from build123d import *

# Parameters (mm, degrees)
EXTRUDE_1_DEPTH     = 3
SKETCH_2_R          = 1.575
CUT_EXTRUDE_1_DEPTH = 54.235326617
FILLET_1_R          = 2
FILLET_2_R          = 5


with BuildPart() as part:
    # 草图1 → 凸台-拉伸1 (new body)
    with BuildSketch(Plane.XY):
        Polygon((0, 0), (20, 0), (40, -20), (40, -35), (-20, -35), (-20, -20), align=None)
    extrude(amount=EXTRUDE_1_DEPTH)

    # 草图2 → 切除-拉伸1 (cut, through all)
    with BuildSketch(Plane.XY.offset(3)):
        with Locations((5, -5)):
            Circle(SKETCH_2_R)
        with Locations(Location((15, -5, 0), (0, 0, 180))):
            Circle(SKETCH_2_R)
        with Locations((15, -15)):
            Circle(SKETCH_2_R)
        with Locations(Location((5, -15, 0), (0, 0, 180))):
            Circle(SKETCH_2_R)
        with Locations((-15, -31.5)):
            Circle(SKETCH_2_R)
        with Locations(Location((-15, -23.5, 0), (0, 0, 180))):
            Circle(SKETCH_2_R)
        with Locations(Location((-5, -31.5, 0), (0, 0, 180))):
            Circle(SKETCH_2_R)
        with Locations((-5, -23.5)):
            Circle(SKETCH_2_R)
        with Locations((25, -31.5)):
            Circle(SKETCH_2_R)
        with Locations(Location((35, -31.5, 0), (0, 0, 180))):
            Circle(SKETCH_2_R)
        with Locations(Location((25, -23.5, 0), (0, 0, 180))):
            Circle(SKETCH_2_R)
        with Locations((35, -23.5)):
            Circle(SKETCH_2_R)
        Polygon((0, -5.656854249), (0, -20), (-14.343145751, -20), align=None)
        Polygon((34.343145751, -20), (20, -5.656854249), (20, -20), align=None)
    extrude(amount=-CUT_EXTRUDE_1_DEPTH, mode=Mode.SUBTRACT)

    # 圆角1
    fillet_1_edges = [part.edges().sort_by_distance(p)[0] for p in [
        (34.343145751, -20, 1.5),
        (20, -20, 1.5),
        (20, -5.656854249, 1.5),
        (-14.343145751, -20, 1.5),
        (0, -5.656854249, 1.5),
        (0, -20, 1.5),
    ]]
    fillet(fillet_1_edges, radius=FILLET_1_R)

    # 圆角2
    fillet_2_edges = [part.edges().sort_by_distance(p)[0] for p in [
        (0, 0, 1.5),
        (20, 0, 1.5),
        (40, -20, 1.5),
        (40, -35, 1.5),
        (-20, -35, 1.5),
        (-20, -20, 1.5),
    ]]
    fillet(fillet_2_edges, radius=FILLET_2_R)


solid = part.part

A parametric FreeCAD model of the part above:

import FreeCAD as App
import Part
import Sketcher
Q = App.Units.Quantity


def edges_at(feature, points):
    """Names of the edges that pass closest to the given points."""
    edges = feature.Shape.Edges
    near = lambda p: min(range(len(edges)), key=lambda i: edges[i].distToShape(Part.Vertex(*p))[0])
    return sorted({f"Edge{near(p) + 1}" for p in points})


def add_polygon(sketch, points):
    """Adds a closed chain of lines whose ends are joined by coincident constraints."""
    first, n = sketch.GeometryCount, len(points)
    for a, b in zip(points, points[1:] + points[:1]):
        sketch.addGeometry(Part.LineSegment(App.Vector(*a, 0), App.Vector(*b, 0)), False)
    for i in range(n):
        sketch.addConstraint(Sketcher.Constraint("Coincident", first + i, 2, first + (i + 1) % n, 1))

doc = App.newDocument("Part")
body = doc.addObject("PartDesign::Body", "Body")

sketch1 = body.newObject("Sketcher::SketchObject", "Sketch")
sketch1.AttachmentSupport = (doc.getObject("XY_Plane"), [""])
sketch1.MapMode = "FlatFace"
add_polygon(sketch1, [(20, 0), (0, 0), (-20, -20), (-20, -35), (40, -35), (40, -20)])
sketch1.addConstraint([
    Sketcher.Constraint("Horizontal", 0),
    Sketcher.Constraint("Vertical", 2),
    Sketcher.Constraint("Horizontal", 3),
    Sketcher.Constraint("Vertical", 4),
    Sketcher.Constraint("Coincident", 0, 2, -1, 1),
    Sketcher.Constraint("Perpendicular", 1, 5),
    Sketcher.Constraint("Horizontal", 1, 2, 4, 2),
    Sketcher.Constraint("Equal", 1, 5),
    Sketcher.Constraint("DistanceX", 0, 2, 0, 1, Q("20 mm")),
    Sketcher.Constraint("DistanceX", 3, 1, 3, 2, Q("60 mm")),
    Sketcher.Constraint("DistanceY", 2, 2, 2, 1, Q("15 mm")),
])
pad1 = body.newObject("PartDesign::Pad", "Pad")
pad1.Profile = sketch1
pad1.Length = 3

sketch2 = body.newObject("Sketcher::SketchObject", "Sketch001")
sketch2.AttachmentSupport = (doc.getObject("XY_Plane"), [""])
sketch2.MapMode = "FlatFace"
sketch2.AttachmentOffset = App.Placement(App.Vector(0, 0, 3), App.Rotation())
sketch2.addGeometry(Part.Circle(App.Vector(5, -5, 0), App.Vector(0, 0, 1), 1.6), False)
sketch2.addGeometry(Part.Circle(App.Vector(15, -5, 0), App.Vector(0, 0, 1), 1.6), False)
sketch2.addGeometry(Part.Circle(App.Vector(15, -15, 0), App.Vector(0, 0, 1), 1.6), False)
sketch2.addGeometry(Part.Circle(App.Vector(5, -15, 0), App.Vector(0, 0, 1), 1.6), False)
sketch2.addGeometry(Part.Circle(App.Vector(-15, -31.5, 0), App.Vector(0, 0, 1), 1.6), False)
sketch2.addGeometry(Part.Circle(App.Vector(-15, -23.5, 0), App.Vector(0, 0, 1), 1.6), False)
sketch2.addGeometry(Part.Circle(App.Vector(-5, -31.5, 0), App.Vector(0, 0, 1), 1.6), False)
sketch2.addGeometry(Part.Circle(App.Vector(-5, -23.5, 0), App.Vector(0, 0, 1), 1.6), False)
sketch2.addGeometry(Part.Circle(App.Vector(25, -31.5, 0), App.Vector(0, 0, 1), 1.6), False)
sketch2.addGeometry(Part.Circle(App.Vector(35, -31.5, 0), App.Vector(0, 0, 1), 1.6), False)
sketch2.addGeometry(Part.Circle(App.Vector(25, -23.5, 0), App.Vector(0, 0, 1), 1.6), False)
sketch2.addGeometry(Part.Circle(App.Vector(35, -23.5, 0), App.Vector(0, 0, 1), 1.6), False)
add_polygon(sketch2, [(0, -20), (0, -5.7), (-14.3, -20)])
add_polygon(sketch2, [(34.3, -20), (20, -5.7), (20, -20)])
sketch2.addConstraint([
    Sketcher.Constraint("Vertical", 12),
    Sketcher.Constraint("Horizontal", 14),
    Sketcher.Constraint("Vertical", 16),
    Sketcher.Constraint("Horizontal", 17),
    Sketcher.Constraint("Equal", 0, 1),
    Sketcher.Constraint("Equal", 1, 2),
    Sketcher.Constraint("Equal", 2, 3),
    Sketcher.Constraint("Equal", 3, 4),
    Sketcher.Constraint("Equal", 4, 5),
    Sketcher.Constraint("Equal", 5, 6),
    Sketcher.Constraint("Equal", 6, 7),
    Sketcher.Constraint("Equal", 7, 8),
    Sketcher.Constraint("Equal", 8, 9),
    Sketcher.Constraint("Equal", 9, 10),
    Sketcher.Constraint("Equal", 10, 11),
    Sketcher.Constraint("PointOnObject", 12, 2, -2),
    Sketcher.Constraint("Perpendicular", 13, 15),
    Sketcher.Constraint("Horizontal", 0, 3, 1, 3),
    Sketcher.Constraint("Horizontal", 2, 3, 3, 3),
    Sketcher.Constraint("Horizontal", 4, 3, 6, 3),
    Sketcher.Constraint("Horizontal", 5, 3, 7, 3),
    Sketcher.Constraint("Horizontal", 6, 3, 8, 3),
    Sketcher.Constraint("Horizontal", 8, 3, 9, 3),
    Sketcher.Constraint("Horizontal", 7, 3, 10, 3),
    Sketcher.Constraint("Horizontal", 10, 3, 11, 3),
    Sketcher.Constraint("Horizontal", 12, 2, 15, 2),
    Sketcher.Constraint("Horizontal", 14, 2, 16, 2),
    Sketcher.Constraint("Vertical", 1, 3, 2, 3),
    Sketcher.Constraint("Vertical", 0, 3, 3, 3),
    Sketcher.Constraint("Vertical", 4, 3, 5, 3),
    Sketcher.Constraint("Vertical", 6, 3, 7, 3),
    Sketcher.Constraint("Vertical", 8, 3, 10, 3),
    Sketcher.Constraint("Vertical", 9, 3, 11, 3),
    Sketcher.Constraint("Equal", 14, 17),
    Sketcher.Constraint("Diameter", 0, Q("3.15 mm")),
    Sketcher.Constraint("DistanceX", -1, 1, 0, 3, Q("5 mm")),
    Sketcher.Constraint("DistanceY", 0, 3, -1, 1, Q("5 mm")),
    Sketcher.Constraint("DistanceX", -1, 1, 1, 3, Q("15 mm")),
    Sketcher.Constraint("DistanceY", 2, 3, -1, 1, Q("15 mm")),
    Sketcher.Constraint("DistanceX", 4, 3, -1, 1, Q("15 mm")),
    Sketcher.Constraint("DistanceX", 6, 3, -1, 1, Q("5 mm")),
    Sketcher.Constraint("DistanceX", -1, 1, 8, 3, Q("25 mm")),
    Sketcher.Constraint("DistanceX", -1, 1, 9, 3, Q("35 mm")),
    Sketcher.Constraint("DistanceY", 13, 2, -1, 1, Q("20 mm")),
    Sketcher.Constraint("DistanceX", -1, 1, 15, 2, Q("20 mm")),
    Sketcher.Constraint("DistanceY", 4, 3, 5, 3, Q("8 mm")),
    Sketcher.Constraint("DistanceY", 4, 3, -1, 1, Q("31.5 mm")),
    Sketcher.Constraint("Distance", 13, Q("20.284271 mm")),
])
pocket1 = body.newObject("PartDesign::Pocket", "Pocket")
pocket1.Profile = sketch2
pocket1.Type = "ThroughAll"
doc.recompute()

fillet = body.newObject("PartDesign::Fillet", "Fillet")
fillet.Base = (pocket1, edges_at(pocket1, [
    (34.343, -20, 1.5),
    (20, -20, 1.5),
    (20, -5.657, 1.5),
    (-14.343, -20, 1.5),
    (0, -5.657, 1.5),
    (0, -20, 1.5),
]))
fillet.Radius = 2
doc.recompute()

fillet2 = body.newObject("PartDesign::Fillet", "Fillet001")
fillet2.Base = (fillet, edges_at(fillet, [
    (0, 0, 1.5),
    (20, 0, 1.5),
    (40, -20, 1.5),
    (40, -35, 1.5),
    (-20, -35, 1.5),
    (-20, -20, 1.5),
]))
fillet2.Radius = 5

doc.recompute()
